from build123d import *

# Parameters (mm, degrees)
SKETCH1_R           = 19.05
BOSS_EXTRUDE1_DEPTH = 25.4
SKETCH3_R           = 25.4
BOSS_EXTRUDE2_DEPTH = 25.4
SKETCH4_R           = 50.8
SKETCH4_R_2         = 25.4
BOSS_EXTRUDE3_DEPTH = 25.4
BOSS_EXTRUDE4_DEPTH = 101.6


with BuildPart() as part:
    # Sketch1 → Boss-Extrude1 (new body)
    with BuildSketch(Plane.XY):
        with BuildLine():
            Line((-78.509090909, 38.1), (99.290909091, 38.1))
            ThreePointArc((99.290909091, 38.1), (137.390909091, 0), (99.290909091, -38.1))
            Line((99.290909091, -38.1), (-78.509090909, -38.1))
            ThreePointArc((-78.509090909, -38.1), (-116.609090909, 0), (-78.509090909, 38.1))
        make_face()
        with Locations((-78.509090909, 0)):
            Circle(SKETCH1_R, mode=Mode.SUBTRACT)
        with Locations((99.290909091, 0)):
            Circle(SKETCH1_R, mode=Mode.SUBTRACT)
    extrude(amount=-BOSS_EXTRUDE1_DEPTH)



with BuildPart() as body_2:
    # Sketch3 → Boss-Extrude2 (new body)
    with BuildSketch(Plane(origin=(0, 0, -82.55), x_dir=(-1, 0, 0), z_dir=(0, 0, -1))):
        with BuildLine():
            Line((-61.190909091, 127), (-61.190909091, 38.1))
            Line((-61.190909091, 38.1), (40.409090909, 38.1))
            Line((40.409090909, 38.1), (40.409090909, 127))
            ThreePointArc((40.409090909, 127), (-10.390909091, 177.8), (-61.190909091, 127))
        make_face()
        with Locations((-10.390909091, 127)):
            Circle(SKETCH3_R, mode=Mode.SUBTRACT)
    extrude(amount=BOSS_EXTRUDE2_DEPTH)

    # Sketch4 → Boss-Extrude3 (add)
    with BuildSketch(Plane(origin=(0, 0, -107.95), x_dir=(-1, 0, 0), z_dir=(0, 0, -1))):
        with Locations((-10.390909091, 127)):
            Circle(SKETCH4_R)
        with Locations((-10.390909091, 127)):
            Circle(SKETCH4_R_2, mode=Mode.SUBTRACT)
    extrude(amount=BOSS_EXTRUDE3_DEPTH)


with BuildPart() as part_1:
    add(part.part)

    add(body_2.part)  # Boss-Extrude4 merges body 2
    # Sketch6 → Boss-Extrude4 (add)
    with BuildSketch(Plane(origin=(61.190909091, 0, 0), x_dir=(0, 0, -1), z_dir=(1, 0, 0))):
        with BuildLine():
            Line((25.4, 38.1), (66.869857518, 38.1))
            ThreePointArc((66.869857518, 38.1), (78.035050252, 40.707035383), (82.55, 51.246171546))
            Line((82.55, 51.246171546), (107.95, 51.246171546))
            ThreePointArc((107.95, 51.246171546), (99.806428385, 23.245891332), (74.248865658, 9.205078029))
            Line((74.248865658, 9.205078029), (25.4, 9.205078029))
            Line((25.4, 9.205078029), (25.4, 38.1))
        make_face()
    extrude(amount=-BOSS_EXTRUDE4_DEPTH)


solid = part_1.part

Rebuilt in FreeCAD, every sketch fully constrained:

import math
import FreeCAD as App
import Part
import Sketcher
from FreeCAD import Vector
Q = App.Units.Quantity

doc = App.newDocument("Part")
body = doc.addObject("PartDesign::Body", "Body")

# Sketch on XY plane
sketch1 = body.newObject("Sketcher::SketchObject", "Sketch")
sketch1.AttachmentSupport = (doc.getObject("XY_Plane"), [""])
sketch1.MapMode = "FlatFace"
sketch1.addGeometry(Part.LineSegment(Vector(99, 38, 0), Vector(-79, 38, 0)), False)
sketch1.addGeometry(Part.ArcOfCircle(Part.Circle(Vector(-79, 0, 0), Vector(0, 0, 1), 38), math.radians(90), math.radians(270)), False)
sketch1.addGeometry(Part.LineSegment(Vector(-79, -38, 0), Vector(99, -38, 0)), False)
sketch1.addGeometry(Part.ArcOfCircle(Part.Circle(Vector(99, 0, 0), Vector(0, 0, 1), 38), math.radians(-90), math.radians(90)), False)
sketch1.addGeometry(Part.Circle(Vector(99, 0, 0), Vector(0, 0, 1), 19), False)
sketch1.addGeometry(Part.Circle(Vector(-79, 0, 0), Vector(0, 0, 1), 19), False)
sketch1.addConstraint(Sketcher.Constraint("Tangent", 0, 2, 1, 1))
sketch1.addConstraint(Sketcher.Constraint("Tangent", 1, 2, 2, 1))
sketch1.addConstraint(Sketcher.Constraint("Tangent", 2, 2, 3, 1))
sketch1.addConstraint(Sketcher.Constraint("Tangent", 3, 2, 0, 1))
sketch1.addConstraint(Sketcher.Constraint("Horizontal", 0))
sketch1.addConstraint(Sketcher.Constraint("Horizontal", 2))
sketch1.addConstraint(Sketcher.Constraint("Coincident", 4, 3, 3, 3))
sketch1.addConstraint(Sketcher.Constraint("Coincident", 5, 3, 1, 3))
sketch1.addConstraint(Sketcher.Constraint("Equal", 4, 5))
sketch1.addConstraint(Sketcher.Constraint("PointOnObject", 1, 3, -1))
sketch1.addConstraint(Sketcher.Constraint("Diameter", 4, Q("1.5 in")))
sketch1.addConstraint(Sketcher.Constraint("Radius", 1, Q("1.5 in")))
sketch1.addConstraint(Sketcher.Constraint("DistanceX", 0, 2, 0, 1, Q("7 in")))
sketch1.addConstraint(Sketcher.Constraint("DistanceX", 1, 3, -1, 1, Q("78.509091 mm")))
pad1 = body.newObject("PartDesign::Pad", "Pad")
pad1.Profile = sketch1
pad1.Length = Q("1 in")
pad1.Reversed = True
body2 = doc.addObject("PartDesign::Body", "Body001")

# Sketch on XY plane
sketch2 = body2.newObject("Sketcher::SketchObject", "Sketch001")
sketch2.AttachmentSupport = (doc.getObject("XY_Plane001"), [""])
sketch2.MapMode = "FlatFace"
sketch2.AttachmentOffset = App.Placement(Vector(0, 0, -3.25 * 25.4), App.Rotation())
sketch2.addGeometry(Part.LineSegment(Vector(61, 127, 0), Vector(61, 38, 0)), False)
sketch2.addGeometry(Part.LineSegment(Vector(61, 38, 0), Vector(-40, 38, 0)), False)
sketch2.addGeometry(Part.LineSegment(Vector(-40, 38, 0), Vector(-40, 127, 0)), False)
sketch2.addGeometry(Part.ArcOfCircle(Part.Circle(Vector(10, 127, 0), Vector(0, 0, 1), 51), math.radians(0), math.radians(180)), False)
sketch2.addGeometry(Part.Circle(Vector(10, 127, 0), Vector(0, 0, 1), 25), False)
sketch2.addConstraint(Sketcher.Constraint("Coincident", 0, 2, 1, 1))
sketch2.addConstraint(Sketcher.Constraint("Coincident", 1, 2, 2, 1))
sketch2.addConstraint(Sketcher.Constraint("Tangent", 2, 2, 3, 2))
sketch2.addConstraint(Sketcher.Constraint("Tangent", 3, 1, 0, 1))
sketch2.addConstraint(Sketcher.Constraint("Vertical", 0))
sketch2.addConstraint(Sketcher.Constraint("Horizontal", 1))
sketch2.addConstraint(Sketcher.Constraint("Vertical", 2))
sketch2.addConstraint(Sketcher.Constraint("Coincident", 4, 3, 3, 3))
sketch2.addConstraint(Sketcher.Constraint("Diameter", 4, Q("2 in")))
sketch2.addConstraint(Sketcher.Constraint("Radius", 3, Q("2 in")))
sketch2.addConstraint(Sketcher.Constraint("DistanceY", 0, 2, 0, 1, Q("3.5 in")))
sketch2.addConstraint(Sketcher.Constraint("DistanceY", -1, 1, 3, 3, Q("5 in")))
sketch2.addConstraint(Sketcher.Constraint("DistanceX", -1, 1, 3, 3, Q("10.390909 mm")))
pad2 = body2.newObject("PartDesign::Pad", "Pad001")
pad2.Profile = sketch2
pad2.Length = Q("1 in")
pad2.Reversed = True

# Sketch on XY plane
sketch3 = body2.newObject("Sketcher::SketchObject", "Sketch002")
sketch3.AttachmentSupport = (doc.getObject("XY_Plane001"), [""])
sketch3.MapMode = "FlatFace"
sketch3.AttachmentOffset = App.Placement(Vector(0, 0, -4.25 * 25.4), App.Rotation())
sketch3.addGeometry(Part.Circle(Vector(10, 127, 0), Vector(0, 0, 1), 51), False)
sketch3.addGeometry(Part.Circle(Vector(10, 127, 0), Vector(0, 0, 1), 25), False)
sketch3.addConstraint(Sketcher.Constraint("Coincident", 1, 3, 0, 3))
sketch3.addConstraint(Sketcher.Constraint("Diameter", 0, Q("4 in")))
sketch3.addConstraint(Sketcher.Constraint("Diameter", 1, Q("2 in")))
sketch3.addConstraint(Sketcher.Constraint("DistanceY", -1, 1, 0, 3, Q("5 in")))
sketch3.addConstraint(Sketcher.Constraint("DistanceX", -1, 1, 0, 3, Q("10.390909 mm")))
pad3 = body2.newObject("PartDesign::Pad", "Pad002")
pad3.Profile = sketch3
pad3.Length = Q("1 in")
pad3.Reversed = True
body.AllowCompound = True
doc.recompute()

boolean = body.newObject("PartDesign::Boolean", "Boolean")
boolean.Type = "Fuse"
boolean.addObjects([body2])

# Sketch on YZ plane
sketch4 = body.newObject("Sketcher::SketchObject", "Sketch003")
sketch4.AttachmentSupport = (doc.getObject("YZ_Plane"), [""])
sketch4.MapMode = "FlatFace"
sketch4.AttachmentOffset = App.Placement(Vector(0, 0, 61.190909), App.Rotation())
sketch4.addGeometry(Part.LineSegment(Vector(38, -67, 0), Vector(38, -25, 0)), False)
sketch4.addGeometry(Part.LineSegment(Vector(38, -25, 0), Vector(9, -25, 0)), False)
sketch4.addGeometry(Part.LineSegment(Vector(9, -25, 0), Vector(9, -74, 0)), False)
sketch4.addGeometry(Part.ArcOfCircle(Part.Circle(Vector(47, -70, 0), Vector(0, 0, 1), 38), math.radians(-174), math.radians(-84)), False)
sketch4.addGeometry(Part.LineSegment(Vector(51, -108, 0), Vector(51, -83, 0)), False)
sketch4.addGeometry(Part.ArcOfCircle(Part.Circle(Vector(50, -70, 0), Vector(0, 0, 1), 13), math.radians(166), math.radians(274)), False)
sketch4.addConstraint(Sketcher.Constraint("Coincident", 0, 2, 1, 1))
sketch4.addConstraint(Sketcher.Constraint("Coincident", 1, 2, 2, 1))
sketch4.addConstraint(Sketcher.Constraint("Coincident", 2, 2, 3, 1))
sketch4.addConstraint(Sketcher.Constraint("Coincident", 3, 2, 4, 1))
sketch4.addConstraint(Sketcher.Constraint("Coincident", 4, 2, 5, 2))
sketch4.addConstraint(Sketcher.Constraint("Coincident", 5, 1, 0, 1))
sketch4.addConstraint(Sketcher.Constraint("Vertical", 0))
sketch4.addConstraint(Sketcher.Constraint("Horizontal", 1))
sketch4.addConstraint(Sketcher.Constraint("Vertical", 2))
sketch4.addConstraint(Sketcher.Constraint("Vertical", 4))
sketch4.addConstraint(Sketcher.Constraint("Radius", 3, Q("1.5 in")))
sketch4.addConstraint(Sketcher.Constraint("Radius", 5, Q("0.5 in")))
sketch4.addConstraint(Sketcher.Constraint("DistanceY", 4, 1, 4, 2, Q("1 in")))
sketch4.addConstraint(Sketcher.Constraint("DistanceY", 0, 2, -1, 1, Q("1 in")))
sketch4.addConstraint(Sketcher.Constraint("DistanceX", -1, 1, 0, 2, Q("1.5 in")))
sketch4.addConstraint(Sketcher.Constraint("DistanceY", 3, 2, -1, 1, Q("4.25 in")))
sketch4.addConstraint(Sketcher.Constraint("DistanceX", 1, 2, 1, 1, Q("28.894922 mm")))
sketch4.addConstraint(Sketcher.Constraint("DistanceY", 2, 2, 5, 3, Q("4.3732 mm")))
sketch4.addConstraint(Sketcher.Constraint("DistanceX", 5, 3, 3, 2, Q("0.807002 mm")))
sketch4.addConstraint(Sketcher.Constraint("DistanceY", 0, 1, 0, 2, Q("41.469858 mm")))
pad4 = body.newObject("PartDesign::Pad", "Pad003")
pad4.Profile = sketch4
pad4.Length = Q("4 in")
pad4.Reversed = True

doc.recompute()
